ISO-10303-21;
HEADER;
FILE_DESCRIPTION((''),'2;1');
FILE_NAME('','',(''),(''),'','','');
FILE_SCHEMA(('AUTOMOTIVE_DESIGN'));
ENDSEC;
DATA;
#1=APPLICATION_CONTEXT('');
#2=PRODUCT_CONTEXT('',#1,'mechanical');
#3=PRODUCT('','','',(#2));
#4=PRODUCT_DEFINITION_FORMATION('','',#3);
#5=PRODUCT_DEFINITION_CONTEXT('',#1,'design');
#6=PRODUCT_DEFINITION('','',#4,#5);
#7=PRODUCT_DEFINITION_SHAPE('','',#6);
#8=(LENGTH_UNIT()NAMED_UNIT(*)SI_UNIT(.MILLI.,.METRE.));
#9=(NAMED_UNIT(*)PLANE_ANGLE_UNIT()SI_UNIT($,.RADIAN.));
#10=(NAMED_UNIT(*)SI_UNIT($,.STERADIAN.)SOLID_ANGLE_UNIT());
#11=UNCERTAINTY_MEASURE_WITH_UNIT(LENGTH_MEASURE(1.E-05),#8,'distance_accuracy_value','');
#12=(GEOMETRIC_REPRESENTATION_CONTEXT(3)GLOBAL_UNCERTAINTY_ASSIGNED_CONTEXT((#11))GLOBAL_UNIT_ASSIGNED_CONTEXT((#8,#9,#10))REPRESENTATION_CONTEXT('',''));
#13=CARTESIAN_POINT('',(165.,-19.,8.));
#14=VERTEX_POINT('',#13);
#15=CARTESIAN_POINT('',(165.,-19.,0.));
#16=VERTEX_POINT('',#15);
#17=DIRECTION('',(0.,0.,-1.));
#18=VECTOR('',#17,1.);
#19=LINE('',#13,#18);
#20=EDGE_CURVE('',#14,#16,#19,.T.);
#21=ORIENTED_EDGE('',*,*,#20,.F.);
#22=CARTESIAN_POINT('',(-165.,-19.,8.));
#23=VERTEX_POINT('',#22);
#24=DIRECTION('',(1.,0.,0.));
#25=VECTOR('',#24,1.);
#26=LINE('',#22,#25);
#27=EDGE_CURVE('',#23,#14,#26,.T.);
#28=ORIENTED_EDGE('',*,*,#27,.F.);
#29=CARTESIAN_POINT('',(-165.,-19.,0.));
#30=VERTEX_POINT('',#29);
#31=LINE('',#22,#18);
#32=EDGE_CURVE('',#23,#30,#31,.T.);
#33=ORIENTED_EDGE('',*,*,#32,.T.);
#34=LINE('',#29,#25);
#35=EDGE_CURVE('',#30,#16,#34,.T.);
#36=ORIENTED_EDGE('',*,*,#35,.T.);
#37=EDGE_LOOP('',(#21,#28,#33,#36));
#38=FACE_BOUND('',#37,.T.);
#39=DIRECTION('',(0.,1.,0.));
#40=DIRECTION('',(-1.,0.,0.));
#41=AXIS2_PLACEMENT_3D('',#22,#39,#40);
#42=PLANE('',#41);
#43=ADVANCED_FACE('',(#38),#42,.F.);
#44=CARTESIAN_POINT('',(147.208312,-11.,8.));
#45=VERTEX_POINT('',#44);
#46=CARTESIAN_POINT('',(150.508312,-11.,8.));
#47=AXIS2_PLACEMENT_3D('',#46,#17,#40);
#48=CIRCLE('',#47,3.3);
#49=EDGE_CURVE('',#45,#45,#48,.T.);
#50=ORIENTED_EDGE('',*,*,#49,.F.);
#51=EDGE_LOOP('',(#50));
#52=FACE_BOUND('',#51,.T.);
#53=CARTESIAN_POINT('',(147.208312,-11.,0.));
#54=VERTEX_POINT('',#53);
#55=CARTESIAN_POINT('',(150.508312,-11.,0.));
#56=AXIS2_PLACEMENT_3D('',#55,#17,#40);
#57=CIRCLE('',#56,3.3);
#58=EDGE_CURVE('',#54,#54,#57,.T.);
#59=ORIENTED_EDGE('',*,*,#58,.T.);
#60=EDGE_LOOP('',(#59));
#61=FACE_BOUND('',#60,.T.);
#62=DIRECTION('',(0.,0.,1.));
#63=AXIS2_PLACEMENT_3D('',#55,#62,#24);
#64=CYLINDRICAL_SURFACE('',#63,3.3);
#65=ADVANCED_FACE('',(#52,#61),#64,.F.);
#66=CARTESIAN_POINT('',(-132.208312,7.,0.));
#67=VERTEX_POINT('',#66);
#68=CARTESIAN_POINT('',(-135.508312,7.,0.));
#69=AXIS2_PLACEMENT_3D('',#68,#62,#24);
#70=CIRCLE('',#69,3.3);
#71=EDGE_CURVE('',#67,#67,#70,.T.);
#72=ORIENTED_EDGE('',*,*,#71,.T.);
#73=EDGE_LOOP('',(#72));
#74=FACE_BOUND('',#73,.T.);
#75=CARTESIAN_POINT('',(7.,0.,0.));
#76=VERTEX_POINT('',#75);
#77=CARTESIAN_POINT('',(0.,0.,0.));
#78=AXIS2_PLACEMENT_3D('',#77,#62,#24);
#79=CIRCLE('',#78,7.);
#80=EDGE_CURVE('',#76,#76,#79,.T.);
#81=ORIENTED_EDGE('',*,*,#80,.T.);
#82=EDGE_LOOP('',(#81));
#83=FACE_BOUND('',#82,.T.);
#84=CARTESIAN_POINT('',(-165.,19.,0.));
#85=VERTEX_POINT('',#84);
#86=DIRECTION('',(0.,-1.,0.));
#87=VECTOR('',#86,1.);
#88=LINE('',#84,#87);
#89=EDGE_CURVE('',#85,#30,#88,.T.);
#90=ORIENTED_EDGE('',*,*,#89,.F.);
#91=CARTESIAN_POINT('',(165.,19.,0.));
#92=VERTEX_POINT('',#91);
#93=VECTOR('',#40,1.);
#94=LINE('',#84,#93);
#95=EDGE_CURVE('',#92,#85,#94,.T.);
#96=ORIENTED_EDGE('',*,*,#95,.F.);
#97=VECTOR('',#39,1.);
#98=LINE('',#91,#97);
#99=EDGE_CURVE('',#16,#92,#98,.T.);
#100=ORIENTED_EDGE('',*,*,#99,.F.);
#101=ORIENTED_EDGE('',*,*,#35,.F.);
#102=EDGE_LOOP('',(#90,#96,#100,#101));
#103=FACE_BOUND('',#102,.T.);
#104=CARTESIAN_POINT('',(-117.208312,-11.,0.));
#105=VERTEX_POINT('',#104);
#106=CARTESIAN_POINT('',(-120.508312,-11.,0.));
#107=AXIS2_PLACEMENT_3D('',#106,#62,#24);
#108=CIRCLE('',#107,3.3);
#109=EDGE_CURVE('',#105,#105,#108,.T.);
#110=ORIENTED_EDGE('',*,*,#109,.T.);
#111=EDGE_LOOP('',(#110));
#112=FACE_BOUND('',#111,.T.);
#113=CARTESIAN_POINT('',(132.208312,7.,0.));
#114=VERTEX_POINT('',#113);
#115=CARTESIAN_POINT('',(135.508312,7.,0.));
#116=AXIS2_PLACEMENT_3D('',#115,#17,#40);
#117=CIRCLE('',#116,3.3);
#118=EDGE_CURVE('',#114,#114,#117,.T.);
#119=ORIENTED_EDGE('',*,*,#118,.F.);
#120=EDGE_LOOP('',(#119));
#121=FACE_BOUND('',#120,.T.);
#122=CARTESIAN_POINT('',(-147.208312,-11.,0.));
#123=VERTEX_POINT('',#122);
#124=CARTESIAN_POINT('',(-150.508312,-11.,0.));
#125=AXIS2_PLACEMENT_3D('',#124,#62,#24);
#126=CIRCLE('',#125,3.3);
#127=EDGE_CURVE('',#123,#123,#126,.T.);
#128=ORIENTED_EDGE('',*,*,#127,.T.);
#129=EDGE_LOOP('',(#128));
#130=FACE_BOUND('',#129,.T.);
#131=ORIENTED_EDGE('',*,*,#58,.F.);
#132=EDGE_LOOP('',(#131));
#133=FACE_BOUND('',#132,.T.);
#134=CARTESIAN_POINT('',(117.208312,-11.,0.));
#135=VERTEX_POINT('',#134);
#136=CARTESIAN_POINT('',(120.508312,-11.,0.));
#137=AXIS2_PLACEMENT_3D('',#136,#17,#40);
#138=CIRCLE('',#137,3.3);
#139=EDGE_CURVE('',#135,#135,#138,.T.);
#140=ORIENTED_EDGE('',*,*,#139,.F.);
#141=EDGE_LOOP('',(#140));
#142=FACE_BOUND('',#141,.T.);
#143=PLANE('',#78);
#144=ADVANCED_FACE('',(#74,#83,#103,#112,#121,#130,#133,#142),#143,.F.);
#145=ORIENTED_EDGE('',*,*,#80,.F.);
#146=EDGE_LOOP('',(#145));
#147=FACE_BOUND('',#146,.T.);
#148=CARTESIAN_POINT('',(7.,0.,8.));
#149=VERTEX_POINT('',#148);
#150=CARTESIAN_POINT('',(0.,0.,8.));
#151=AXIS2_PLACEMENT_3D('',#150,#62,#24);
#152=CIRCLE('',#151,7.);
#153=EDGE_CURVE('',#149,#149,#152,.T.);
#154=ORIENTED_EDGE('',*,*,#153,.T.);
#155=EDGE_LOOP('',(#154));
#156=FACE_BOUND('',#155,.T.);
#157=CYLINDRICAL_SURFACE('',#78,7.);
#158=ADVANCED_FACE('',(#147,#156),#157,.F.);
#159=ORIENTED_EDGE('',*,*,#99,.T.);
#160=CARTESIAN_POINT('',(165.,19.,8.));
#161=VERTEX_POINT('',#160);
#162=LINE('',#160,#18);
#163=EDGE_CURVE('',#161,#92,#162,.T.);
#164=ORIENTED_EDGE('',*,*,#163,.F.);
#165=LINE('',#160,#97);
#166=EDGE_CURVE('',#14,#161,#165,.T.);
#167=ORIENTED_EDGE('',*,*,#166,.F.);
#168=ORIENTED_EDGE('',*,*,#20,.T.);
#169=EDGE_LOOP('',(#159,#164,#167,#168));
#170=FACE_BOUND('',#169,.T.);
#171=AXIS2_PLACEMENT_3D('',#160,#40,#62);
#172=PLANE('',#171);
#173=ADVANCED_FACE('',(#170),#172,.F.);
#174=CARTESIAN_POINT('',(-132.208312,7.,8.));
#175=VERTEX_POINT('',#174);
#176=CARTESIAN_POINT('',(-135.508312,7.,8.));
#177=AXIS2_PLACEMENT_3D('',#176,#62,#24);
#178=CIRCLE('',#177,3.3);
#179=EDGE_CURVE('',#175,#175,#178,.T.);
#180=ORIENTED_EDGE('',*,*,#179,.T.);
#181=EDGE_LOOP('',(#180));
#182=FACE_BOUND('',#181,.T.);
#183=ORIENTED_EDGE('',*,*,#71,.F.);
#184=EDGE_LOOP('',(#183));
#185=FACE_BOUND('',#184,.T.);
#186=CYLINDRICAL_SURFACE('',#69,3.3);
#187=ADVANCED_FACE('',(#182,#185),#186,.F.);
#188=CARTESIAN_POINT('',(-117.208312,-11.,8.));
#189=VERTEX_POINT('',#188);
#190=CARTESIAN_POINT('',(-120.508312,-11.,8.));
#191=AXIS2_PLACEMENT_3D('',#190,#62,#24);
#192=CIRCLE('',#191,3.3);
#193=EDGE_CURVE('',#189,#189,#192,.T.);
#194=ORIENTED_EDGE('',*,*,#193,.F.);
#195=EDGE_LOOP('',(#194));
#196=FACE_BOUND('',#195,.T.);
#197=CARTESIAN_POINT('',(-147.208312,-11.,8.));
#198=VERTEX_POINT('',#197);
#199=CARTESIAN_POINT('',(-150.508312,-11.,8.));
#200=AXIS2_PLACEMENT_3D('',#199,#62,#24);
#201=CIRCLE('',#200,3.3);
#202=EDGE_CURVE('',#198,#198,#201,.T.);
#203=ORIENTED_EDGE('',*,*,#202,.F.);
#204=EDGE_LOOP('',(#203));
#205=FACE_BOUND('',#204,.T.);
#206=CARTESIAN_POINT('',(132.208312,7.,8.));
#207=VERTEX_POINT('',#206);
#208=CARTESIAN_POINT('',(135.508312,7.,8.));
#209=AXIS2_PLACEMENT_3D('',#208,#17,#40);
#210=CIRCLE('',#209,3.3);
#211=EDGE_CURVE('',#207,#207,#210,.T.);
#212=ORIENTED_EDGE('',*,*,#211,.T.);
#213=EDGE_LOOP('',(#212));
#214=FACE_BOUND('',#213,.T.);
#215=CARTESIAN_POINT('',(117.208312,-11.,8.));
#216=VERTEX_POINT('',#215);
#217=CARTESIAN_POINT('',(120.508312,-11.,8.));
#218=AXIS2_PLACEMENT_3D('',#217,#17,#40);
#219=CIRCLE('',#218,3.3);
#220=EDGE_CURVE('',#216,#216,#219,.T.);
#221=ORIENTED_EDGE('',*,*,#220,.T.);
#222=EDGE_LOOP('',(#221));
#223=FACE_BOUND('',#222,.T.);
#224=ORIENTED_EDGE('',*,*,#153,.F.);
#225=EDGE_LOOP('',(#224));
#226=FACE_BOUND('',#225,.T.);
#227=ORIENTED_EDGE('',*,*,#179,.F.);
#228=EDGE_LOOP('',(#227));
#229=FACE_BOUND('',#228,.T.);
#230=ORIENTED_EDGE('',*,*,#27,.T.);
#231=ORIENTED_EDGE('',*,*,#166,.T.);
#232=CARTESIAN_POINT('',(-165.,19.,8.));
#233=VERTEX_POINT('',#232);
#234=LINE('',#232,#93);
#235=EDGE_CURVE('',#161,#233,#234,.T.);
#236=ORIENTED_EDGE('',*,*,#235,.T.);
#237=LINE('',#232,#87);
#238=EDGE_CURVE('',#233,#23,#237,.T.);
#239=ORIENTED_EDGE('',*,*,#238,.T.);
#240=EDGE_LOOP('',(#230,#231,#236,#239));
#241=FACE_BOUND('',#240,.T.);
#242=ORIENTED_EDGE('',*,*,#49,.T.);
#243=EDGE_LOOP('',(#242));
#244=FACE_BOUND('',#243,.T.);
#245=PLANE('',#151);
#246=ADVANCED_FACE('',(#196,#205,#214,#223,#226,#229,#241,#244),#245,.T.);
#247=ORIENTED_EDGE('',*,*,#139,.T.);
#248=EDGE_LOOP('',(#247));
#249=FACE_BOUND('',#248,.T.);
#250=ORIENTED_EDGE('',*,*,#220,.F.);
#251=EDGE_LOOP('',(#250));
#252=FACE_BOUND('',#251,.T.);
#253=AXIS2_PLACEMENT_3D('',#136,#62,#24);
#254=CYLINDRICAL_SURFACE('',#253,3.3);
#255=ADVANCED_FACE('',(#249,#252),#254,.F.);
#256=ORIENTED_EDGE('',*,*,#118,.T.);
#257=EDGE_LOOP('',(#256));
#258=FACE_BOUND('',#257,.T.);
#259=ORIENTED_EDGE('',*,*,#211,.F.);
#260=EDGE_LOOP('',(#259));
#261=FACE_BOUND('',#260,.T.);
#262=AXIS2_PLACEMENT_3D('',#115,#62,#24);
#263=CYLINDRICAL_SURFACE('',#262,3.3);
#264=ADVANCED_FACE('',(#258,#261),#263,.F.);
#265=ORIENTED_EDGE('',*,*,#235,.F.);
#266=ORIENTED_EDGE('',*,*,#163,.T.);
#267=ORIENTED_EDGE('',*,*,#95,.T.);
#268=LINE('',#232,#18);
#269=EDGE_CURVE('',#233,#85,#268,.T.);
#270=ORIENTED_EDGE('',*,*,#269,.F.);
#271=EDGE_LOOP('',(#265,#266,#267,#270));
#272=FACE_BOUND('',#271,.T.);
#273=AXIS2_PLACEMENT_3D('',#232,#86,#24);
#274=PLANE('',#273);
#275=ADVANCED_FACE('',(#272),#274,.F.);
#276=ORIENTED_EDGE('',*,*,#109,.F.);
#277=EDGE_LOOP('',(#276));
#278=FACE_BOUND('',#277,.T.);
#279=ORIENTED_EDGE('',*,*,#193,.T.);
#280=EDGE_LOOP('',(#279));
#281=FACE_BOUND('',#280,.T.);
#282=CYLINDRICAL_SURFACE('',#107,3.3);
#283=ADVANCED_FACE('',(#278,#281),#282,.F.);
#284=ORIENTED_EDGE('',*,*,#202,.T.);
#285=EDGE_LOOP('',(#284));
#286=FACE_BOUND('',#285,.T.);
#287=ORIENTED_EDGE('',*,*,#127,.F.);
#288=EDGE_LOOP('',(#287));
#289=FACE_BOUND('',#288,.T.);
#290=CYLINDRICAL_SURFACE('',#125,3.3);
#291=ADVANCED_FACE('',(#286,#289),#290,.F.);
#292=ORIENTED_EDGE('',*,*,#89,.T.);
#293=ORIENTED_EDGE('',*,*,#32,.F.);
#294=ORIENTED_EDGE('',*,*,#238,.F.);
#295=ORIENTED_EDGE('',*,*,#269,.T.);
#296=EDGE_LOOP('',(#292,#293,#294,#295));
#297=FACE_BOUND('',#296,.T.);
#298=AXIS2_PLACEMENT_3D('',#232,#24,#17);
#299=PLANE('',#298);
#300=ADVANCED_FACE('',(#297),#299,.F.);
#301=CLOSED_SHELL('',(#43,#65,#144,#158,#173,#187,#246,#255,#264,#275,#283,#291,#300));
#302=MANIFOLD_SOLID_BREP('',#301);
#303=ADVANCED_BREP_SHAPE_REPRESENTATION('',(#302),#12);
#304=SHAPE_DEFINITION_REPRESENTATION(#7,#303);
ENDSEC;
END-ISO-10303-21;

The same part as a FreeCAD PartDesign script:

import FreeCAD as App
import Part
import Sketcher

V = App.Vector
Q = App.Units.Quantity


def add_polygon(sketch, points):
    """Adds a closed chain of lines whose ends are joined by coincident constraints."""
    first, n = sketch.GeometryCount, len(points)
    for a, b in zip(points, points[1:] + points[:1]):
        sketch.addGeometry(Part.LineSegment(App.Vector(*a, 0), App.Vector(*b, 0)), False)
    for i in range(n):
        sketch.addConstraint(Sketcher.Constraint("Coincident", first + i, 2, first + (i + 1) % n, 1))

doc = App.newDocument("Part")
body = doc.addObject("PartDesign::Body", "Body")

# Sketch on XY plane
sketch1 = body.newObject("Sketcher::SketchObject", "Sketch")
sketch1.AttachmentSupport = (doc.getObject("XY_Plane"), [""])
sketch1.MapMode = "FlatFace"
add_polygon(sketch1, [(-165, 19), (-165, -19), (165, -19), (165, 19)])  # lines 0-3
sketch1.addConstraint(Sketcher.Constraint("Vertical", 0))
sketch1.addConstraint(Sketcher.Constraint("Horizontal", 1))
sketch1.addConstraint(Sketcher.Constraint("Vertical", 2))
sketch1.addConstraint(Sketcher.Constraint("Horizontal", 3))
sketch1.addConstraint(Sketcher.Constraint("Symmetric", 0, 2, 2, 2, -1, 1))
sketch1.addConstraint(Sketcher.Constraint("DistanceX", 1, 1, 1, 2, Q("330 mm")))
sketch1.addConstraint(Sketcher.Constraint("DistanceY", 0, 2, 0, 1, Q("38 mm")))
pad1 = body.newObject("PartDesign::Pad", "Pad")
pad1.Profile = sketch1
pad1.Length = 8

# Sketch on XY plane
sketch2 = body.newObject("Sketcher::SketchObject", "Sketch001")
sketch2.AttachmentSupport = (doc.getObject("XY_Plane"), [""])
sketch2.MapMode = "FlatFace"
sketch2.AttachmentOffset = App.Placement(V(0, 0, 8), App.Rotation())
sketch2.addGeometry(Part.Circle(V(0, 0, 0), V(0, 0, 1), 7), False)
sketch2.addConstraint(Sketcher.Constraint("Coincident", 0, 3, -1, 1))
sketch2.addConstraint(Sketcher.Constraint("Diameter", 0, Q("14 mm")))
pocket1 = body.newObject("PartDesign::Pocket", "Pocket")
pocket1.Profile = sketch2
pocket1.Type = "ThroughAll"

# Sketch on XY plane
sketch3 = body.newObject("Sketcher::SketchObject", "Sketch002")
sketch3.AttachmentSupport = (doc.getObject("XY_Plane"), [""])
sketch3.MapMode = "FlatFace"
sketch3.AttachmentOffset = App.Placement(V(0, 0, 8), App.Rotation())
sketch3.addGeometry(Part.Circle(V(-135.5, 7, 0), V(0, 0, 1), 3.3), False)
sketch3.addGeometry(Part.Circle(V(-120.5, -11, 0), V(0, 0, 1), 3.3), False)
sketch3.addGeometry(Part.Circle(V(-150.5, -11, 0), V(0, 0, 1), 3.3), False)
sketch3.addConstraint(Sketcher.Constraint("Equal", 0, 1))
sketch3.addConstraint(Sketcher.Constraint("Equal", 1, 2))
sketch3.addConstraint(Sketcher.Constraint("Horizontal", 1, 3, 2, 3))
sketch3.addConstraint(Sketcher.Constraint("Diameter", 0, Q("6.6 mm")))
sketch3.addConstraint(Sketcher.Constraint("DistanceY", -1, 1, 0, 3, Q("7 mm")))
sketch3.addConstraint(Sketcher.Constraint("DistanceY", 1, 3, -1, 1, Q("11 mm")))
sketch3.addConstraint(Sketcher.Constraint("DistanceX", 0, 3, 1, 3, Q("15 mm")))
sketch3.addConstraint(Sketcher.Constraint("DistanceX", 2, 3, 0, 3, Q("15 mm")))
sketch3.addConstraint(Sketcher.Constraint("DistanceX", 0, 3, -1, 1, Q("135.508312 mm")))
pocket2 = body.newObject("PartDesign::Pocket", "Pocket001")
pocket2.Profile = sketch3
pocket2.Type = "ThroughAll"
doc.recompute()

mirrored = body.newObject("PartDesign::Mirrored", "Mirrored")
mirrored.Originals = [pocket2]
mirrored.MirrorPlane = (doc.getObject("YZ_Plane"), [""])
body.Tip = mirrored

doc.recompute()
